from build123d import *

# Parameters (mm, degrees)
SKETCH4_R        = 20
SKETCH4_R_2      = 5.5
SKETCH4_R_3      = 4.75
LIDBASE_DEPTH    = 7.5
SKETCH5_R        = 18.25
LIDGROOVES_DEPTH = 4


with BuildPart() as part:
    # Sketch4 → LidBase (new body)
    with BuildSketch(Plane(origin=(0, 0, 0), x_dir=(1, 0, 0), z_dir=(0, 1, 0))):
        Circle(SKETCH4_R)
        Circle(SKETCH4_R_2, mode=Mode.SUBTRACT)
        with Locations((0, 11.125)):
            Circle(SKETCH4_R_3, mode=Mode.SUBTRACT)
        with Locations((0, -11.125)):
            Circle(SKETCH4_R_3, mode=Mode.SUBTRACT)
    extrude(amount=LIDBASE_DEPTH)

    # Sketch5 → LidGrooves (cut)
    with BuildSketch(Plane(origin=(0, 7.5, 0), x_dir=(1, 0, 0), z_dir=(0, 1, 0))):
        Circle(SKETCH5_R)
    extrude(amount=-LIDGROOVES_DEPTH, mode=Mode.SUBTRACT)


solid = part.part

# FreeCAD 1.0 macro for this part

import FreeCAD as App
import Part
import Sketcher

V = App.Vector

doc = App.newDocument("Part")
body = doc.addObject("PartDesign::Body", "Body")

# Sketch on XZ plane
sketch1 = doc.addObject("Sketcher::SketchObject", "Sketch")
body.addObject(sketch1)
sketch1.AttachmentSupport = (doc.XZ_Plane, [""])
sketch1.MapMode = "FlatFace"
sketch1.addGeometry([
    Part.Circle(V(0, 0, 0), V(0, 0, 1), 20),
    Part.Circle(V(0, 11.1, 0), V(0, 0, 1), 4.8),
    Part.Circle(V(0, 0, 0), V(0, 0, 1), 5.5),
    Part.Circle(V(0, -11.1, 0), V(0, 0, 1), 4.8),
], False)
sketch1.addConstraint([
    Sketcher.Constraint("Coincident", 0, 3, -1, 1),
    Sketcher.Constraint("Coincident", 2, 3, -1, 1),
    Sketcher.Constraint("Equal", 1, 3),
    Sketcher.Constraint("Symmetric", 1, 3, 3, 3, -1, 1),
    Sketcher.Constraint("PointOnObject", 1, 3, -2),
    Sketcher.Constraint("Diameter", 0, 40.0),
    Sketcher.Constraint("Diameter", 2, 11.0),
    Sketcher.Constraint("Diameter", 1, 9.5),
    Sketcher.Constraint("DistanceY", 3, 3, 1, 3, 22.25),
])
pad1 = doc.addObject("PartDesign::Pad", "Pad")
body.addObject(pad1)
pad1.Profile = sketch1
pad1.Length = 7.5
pad1.Reversed = True

# Sketch on XZ plane
sketch2 = doc.addObject("Sketcher::SketchObject", "Sketch001")
body.addObject(sketch2)
sketch2.AttachmentSupport = (doc.XZ_Plane, [""])
sketch2.MapMode = "FlatFace"
sketch2.AttachmentOffset = App.Placement(V(0, 0, -7.5), App.Rotation())
sketch2.addGeometry(Part.Circle(V(0, 0, 0), V(0, 0, 1), 18), False)
sketch2.addConstraint([
    Sketcher.Constraint("Coincident", 0, 3, -1, 1),
    Sketcher.Constraint("Diameter", 0, 36.5),
])
pocket1 = doc.addObject("PartDesign::Pocket", "Pocket")
body.addObject(pocket1)
pocket1.Profile = sketch2
pocket1.Length = 4
pocket1.Reversed = True

doc.recompute()
